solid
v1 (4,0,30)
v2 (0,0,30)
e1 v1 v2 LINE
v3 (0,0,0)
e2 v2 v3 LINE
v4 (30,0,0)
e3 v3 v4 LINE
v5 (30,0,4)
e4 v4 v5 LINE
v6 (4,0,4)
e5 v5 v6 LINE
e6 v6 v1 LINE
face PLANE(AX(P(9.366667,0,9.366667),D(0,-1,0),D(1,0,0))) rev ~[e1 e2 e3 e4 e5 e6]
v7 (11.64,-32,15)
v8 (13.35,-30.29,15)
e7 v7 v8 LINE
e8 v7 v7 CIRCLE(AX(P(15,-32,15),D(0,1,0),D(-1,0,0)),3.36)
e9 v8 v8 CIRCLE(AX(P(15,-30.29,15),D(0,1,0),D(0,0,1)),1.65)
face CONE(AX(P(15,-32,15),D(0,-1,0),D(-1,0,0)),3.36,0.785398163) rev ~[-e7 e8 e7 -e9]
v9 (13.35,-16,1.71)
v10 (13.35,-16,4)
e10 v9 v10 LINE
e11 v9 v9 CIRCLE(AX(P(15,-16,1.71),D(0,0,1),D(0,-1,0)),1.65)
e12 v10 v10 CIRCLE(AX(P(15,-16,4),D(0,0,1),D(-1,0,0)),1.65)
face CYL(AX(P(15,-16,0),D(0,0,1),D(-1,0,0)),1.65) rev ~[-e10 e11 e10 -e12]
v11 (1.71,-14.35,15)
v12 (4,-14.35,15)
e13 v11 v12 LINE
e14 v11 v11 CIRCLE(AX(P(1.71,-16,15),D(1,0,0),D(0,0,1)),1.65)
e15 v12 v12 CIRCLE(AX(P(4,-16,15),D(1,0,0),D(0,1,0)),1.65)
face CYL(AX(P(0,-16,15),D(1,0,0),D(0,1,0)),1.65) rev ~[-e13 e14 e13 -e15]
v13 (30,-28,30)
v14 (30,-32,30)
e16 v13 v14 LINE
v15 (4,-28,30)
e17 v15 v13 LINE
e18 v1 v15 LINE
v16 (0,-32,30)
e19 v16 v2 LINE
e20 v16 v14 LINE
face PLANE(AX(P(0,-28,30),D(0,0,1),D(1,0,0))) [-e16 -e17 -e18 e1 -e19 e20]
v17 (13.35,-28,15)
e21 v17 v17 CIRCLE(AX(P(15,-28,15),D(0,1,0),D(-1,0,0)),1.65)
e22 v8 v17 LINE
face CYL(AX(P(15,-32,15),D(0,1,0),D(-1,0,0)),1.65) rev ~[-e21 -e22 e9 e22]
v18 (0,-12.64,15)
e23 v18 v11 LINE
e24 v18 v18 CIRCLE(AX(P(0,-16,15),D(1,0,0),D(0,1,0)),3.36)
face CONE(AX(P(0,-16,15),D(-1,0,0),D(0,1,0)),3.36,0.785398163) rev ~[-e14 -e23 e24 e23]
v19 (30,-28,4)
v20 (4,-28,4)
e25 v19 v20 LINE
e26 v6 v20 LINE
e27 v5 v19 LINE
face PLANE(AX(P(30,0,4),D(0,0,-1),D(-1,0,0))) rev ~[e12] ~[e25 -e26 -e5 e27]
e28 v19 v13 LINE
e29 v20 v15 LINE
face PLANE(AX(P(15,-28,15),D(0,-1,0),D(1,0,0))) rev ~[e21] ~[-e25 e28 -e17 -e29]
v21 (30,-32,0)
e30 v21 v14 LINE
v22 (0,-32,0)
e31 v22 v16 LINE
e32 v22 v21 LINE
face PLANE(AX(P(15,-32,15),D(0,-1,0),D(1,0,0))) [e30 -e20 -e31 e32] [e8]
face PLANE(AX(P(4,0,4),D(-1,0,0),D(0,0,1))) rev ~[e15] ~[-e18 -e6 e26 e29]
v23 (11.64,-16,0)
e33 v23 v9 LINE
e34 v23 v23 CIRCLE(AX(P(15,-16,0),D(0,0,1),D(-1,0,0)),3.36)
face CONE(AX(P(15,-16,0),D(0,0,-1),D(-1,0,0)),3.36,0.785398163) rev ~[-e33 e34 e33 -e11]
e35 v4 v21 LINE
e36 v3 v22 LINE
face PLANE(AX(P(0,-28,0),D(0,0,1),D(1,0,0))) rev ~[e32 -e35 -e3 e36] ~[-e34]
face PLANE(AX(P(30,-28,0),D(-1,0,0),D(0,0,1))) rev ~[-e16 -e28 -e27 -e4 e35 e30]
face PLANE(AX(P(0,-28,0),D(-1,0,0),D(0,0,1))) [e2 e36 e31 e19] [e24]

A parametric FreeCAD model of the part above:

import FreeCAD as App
import Part
import Sketcher
from FreeCAD import Vector
Q = App.Units.Quantity


def add_polygon(sketch, points):
    """Adds a closed chain of lines whose ends are joined by coincident constraints."""
    first, n = sketch.GeometryCount, len(points)
    for a, b in zip(points, points[1:] + points[:1]):
        sketch.addGeometry(Part.LineSegment(App.Vector(*a, 0), App.Vector(*b, 0)), False)
    for i in range(n):
        sketch.addConstraint(Sketcher.Constraint("Coincident", first + i, 2, first + (i + 1) % n, 1))

doc = App.newDocument("Part")
body = doc.addObject("PartDesign::Body", "Body")

sketch1 = doc.addObject("Sketcher::SketchObject", "Sketch")
body.addObject(sketch1)
sketch1.AttachmentSupport = (doc.XZ_Plane, [""])
sketch1.MapMode = "FlatFace"
add_polygon(sketch1, [(0, 0), (30, 0), (30, 4), (4, 4), (4, 30), (0, 30)])
sketch1.addConstraint([
    Sketcher.Constraint("Horizontal", 0),
    Sketcher.Constraint("Vertical", 1),
    Sketcher.Constraint("Horizontal", 2),
    Sketcher.Constraint("Vertical", 3),
    Sketcher.Constraint("Horizontal", 4),
    Sketcher.Constraint("Vertical", 5),
    Sketcher.Constraint("Coincident", 5, 2, -1, 1),
    Sketcher.Constraint("Equal", 4, 1),
    Sketcher.Constraint("Equal", 2, 3),
    Sketcher.Constraint("DistanceX", 0, 1, 0, 2, Q("30 mm")),
    Sketcher.Constraint("DistanceX", 2, 2, 2, 1, Q("26 mm")),
])
pad1 = doc.addObject("PartDesign::Pad", "Pad")
body.addObject(pad1)
pad1.Profile = sketch1
pad1.Length = 28

sketch2 = doc.addObject("Sketcher::SketchObject", "Sketch001")
body.addObject(sketch2)
sketch2.AttachmentSupport = (doc.XZ_Plane, [""])
sketch2.MapMode = "FlatFace"
sketch2.AttachmentOffset = App.Placement(Vector(0, 0, 28), App.Rotation())
add_polygon(sketch2, [(0, 30), (0, 0), (30, 0), (30, 30)])
sketch2.addConstraint([
    Sketcher.Constraint("Vertical", 0),
    Sketcher.Constraint("Horizontal", 1),
    Sketcher.Constraint("Vertical", 2),
    Sketcher.Constraint("Horizontal", 3),
    Sketcher.Constraint("Coincident", 0, 2, -1, 1),
    Sketcher.Constraint("Equal", 3, 0),
    Sketcher.Constraint("DistanceX", 1, 1, 1, 2, Q("30 mm")),
])
pad2 = doc.addObject("PartDesign::Pad", "Pad001")
body.addObject(pad2)
pad2.Profile = sketch2
pad2.Length = 4

sketch3 = doc.addObject("Sketcher::SketchObject", "Sketch002")
body.addObject(sketch3)
sketch3.AttachmentSupport = (doc.XZ_Plane, [""])
sketch3.MapMode = "FlatFace"
sketch3.AttachmentOffset = App.Placement(Vector(0, 0, 32), App.Rotation())
sketch3.addGeometry(Part.Circle(Vector(15, 15, 0), Vector(0, 0, 1), 1.65), False)
sketch3.addConstraint([
    Sketcher.Constraint("Diameter", 0, Q("3.3 mm")),
    Sketcher.Constraint("DistanceX", -1, 1, 0, 3, Q("15 mm")),
    Sketcher.Constraint("DistanceY", -1, 1, 0, 3, Q("15 mm")),
])
doc.recompute()
hole = doc.addObject("PartDesign::Hole", "Hole")
body.addObject(hole)
hole.Profile = sketch3
hole.ThreadType = "None"
hole.Diameter = 3.3
hole.DepthType = "Dimension"
hole.Depth = 40
hole.DrillPoint = "Angled"
hole.DrillPointAngle = 118
hole.HoleCutType = "Countersink"
hole.HoleCutDiameter = 6.72
hole.HoleCutCountersinkAngle = 90

sketch4 = doc.addObject("Sketcher::SketchObject", "Sketch003")
body.addObject(sketch4)
sketch4.AttachmentSupport = (doc.YZ_Plane, [""])
sketch4.MapMode = "FlatFace"
sketch4.addGeometry(Part.Circle(Vector(-16, 15, 0), Vector(0, 0, 1), 1.65), False)
sketch4.addConstraint([
    Sketcher.Constraint("Diameter", 0, Q("3.3 mm")),
    Sketcher.Constraint("DistanceX", 0, 3, -1, 1, Q("16 mm")),
    Sketcher.Constraint("DistanceY", -1, 1, 0, 3, Q("15 mm")),
])
doc.recompute()
hole2 = doc.addObject("PartDesign::Hole", "Hole001")
body.addObject(hole2)
hole2.Profile = sketch4
hole2.ThreadType = "None"
hole2.Diameter = 3.3
hole2.DepthType = "Dimension"
hole2.Depth = 40
hole2.DrillPoint = "Angled"
hole2.DrillPointAngle = 118
hole2.HoleCutType = "Countersink"
hole2.HoleCutDiameter = 6.72
hole2.HoleCutCountersinkAngle = 90
hole2.Reversed = True

sketch5 = doc.addObject("Sketcher::SketchObject", "Sketch004")
body.addObject(sketch5)
sketch5.AttachmentSupport = (doc.XY_Plane, [""])
sketch5.MapMode = "FlatFace"
sketch5.addGeometry(Part.Circle(Vector(15, -16, 0), Vector(0, 0, 1), 1.65), False)
sketch5.addConstraint([
    Sketcher.Constraint("Diameter", 0, Q("3.3 mm")),
    Sketcher.Constraint("DistanceX", -1, 1, 0, 3, Q("15 mm")),
    Sketcher.Constraint("DistanceY", 0, 3, -1, 1, Q("16 mm")),
])
doc.recompute()
hole3 = doc.addObject("PartDesign::Hole", "Hole002")
body.addObject(hole3)
hole3.Profile = sketch5
hole3.ThreadType = "None"
hole3.Diameter = 3.3
hole3.DepthType = "Dimension"
hole3.Depth = 40
hole3.DrillPoint = "Angled"
hole3.DrillPointAngle = 118
hole3.HoleCutType = "Countersink"
hole3.HoleCutDiameter = 6.72
hole3.HoleCutCountersinkAngle = 90
hole3.Reversed = True

doc.recompute()
